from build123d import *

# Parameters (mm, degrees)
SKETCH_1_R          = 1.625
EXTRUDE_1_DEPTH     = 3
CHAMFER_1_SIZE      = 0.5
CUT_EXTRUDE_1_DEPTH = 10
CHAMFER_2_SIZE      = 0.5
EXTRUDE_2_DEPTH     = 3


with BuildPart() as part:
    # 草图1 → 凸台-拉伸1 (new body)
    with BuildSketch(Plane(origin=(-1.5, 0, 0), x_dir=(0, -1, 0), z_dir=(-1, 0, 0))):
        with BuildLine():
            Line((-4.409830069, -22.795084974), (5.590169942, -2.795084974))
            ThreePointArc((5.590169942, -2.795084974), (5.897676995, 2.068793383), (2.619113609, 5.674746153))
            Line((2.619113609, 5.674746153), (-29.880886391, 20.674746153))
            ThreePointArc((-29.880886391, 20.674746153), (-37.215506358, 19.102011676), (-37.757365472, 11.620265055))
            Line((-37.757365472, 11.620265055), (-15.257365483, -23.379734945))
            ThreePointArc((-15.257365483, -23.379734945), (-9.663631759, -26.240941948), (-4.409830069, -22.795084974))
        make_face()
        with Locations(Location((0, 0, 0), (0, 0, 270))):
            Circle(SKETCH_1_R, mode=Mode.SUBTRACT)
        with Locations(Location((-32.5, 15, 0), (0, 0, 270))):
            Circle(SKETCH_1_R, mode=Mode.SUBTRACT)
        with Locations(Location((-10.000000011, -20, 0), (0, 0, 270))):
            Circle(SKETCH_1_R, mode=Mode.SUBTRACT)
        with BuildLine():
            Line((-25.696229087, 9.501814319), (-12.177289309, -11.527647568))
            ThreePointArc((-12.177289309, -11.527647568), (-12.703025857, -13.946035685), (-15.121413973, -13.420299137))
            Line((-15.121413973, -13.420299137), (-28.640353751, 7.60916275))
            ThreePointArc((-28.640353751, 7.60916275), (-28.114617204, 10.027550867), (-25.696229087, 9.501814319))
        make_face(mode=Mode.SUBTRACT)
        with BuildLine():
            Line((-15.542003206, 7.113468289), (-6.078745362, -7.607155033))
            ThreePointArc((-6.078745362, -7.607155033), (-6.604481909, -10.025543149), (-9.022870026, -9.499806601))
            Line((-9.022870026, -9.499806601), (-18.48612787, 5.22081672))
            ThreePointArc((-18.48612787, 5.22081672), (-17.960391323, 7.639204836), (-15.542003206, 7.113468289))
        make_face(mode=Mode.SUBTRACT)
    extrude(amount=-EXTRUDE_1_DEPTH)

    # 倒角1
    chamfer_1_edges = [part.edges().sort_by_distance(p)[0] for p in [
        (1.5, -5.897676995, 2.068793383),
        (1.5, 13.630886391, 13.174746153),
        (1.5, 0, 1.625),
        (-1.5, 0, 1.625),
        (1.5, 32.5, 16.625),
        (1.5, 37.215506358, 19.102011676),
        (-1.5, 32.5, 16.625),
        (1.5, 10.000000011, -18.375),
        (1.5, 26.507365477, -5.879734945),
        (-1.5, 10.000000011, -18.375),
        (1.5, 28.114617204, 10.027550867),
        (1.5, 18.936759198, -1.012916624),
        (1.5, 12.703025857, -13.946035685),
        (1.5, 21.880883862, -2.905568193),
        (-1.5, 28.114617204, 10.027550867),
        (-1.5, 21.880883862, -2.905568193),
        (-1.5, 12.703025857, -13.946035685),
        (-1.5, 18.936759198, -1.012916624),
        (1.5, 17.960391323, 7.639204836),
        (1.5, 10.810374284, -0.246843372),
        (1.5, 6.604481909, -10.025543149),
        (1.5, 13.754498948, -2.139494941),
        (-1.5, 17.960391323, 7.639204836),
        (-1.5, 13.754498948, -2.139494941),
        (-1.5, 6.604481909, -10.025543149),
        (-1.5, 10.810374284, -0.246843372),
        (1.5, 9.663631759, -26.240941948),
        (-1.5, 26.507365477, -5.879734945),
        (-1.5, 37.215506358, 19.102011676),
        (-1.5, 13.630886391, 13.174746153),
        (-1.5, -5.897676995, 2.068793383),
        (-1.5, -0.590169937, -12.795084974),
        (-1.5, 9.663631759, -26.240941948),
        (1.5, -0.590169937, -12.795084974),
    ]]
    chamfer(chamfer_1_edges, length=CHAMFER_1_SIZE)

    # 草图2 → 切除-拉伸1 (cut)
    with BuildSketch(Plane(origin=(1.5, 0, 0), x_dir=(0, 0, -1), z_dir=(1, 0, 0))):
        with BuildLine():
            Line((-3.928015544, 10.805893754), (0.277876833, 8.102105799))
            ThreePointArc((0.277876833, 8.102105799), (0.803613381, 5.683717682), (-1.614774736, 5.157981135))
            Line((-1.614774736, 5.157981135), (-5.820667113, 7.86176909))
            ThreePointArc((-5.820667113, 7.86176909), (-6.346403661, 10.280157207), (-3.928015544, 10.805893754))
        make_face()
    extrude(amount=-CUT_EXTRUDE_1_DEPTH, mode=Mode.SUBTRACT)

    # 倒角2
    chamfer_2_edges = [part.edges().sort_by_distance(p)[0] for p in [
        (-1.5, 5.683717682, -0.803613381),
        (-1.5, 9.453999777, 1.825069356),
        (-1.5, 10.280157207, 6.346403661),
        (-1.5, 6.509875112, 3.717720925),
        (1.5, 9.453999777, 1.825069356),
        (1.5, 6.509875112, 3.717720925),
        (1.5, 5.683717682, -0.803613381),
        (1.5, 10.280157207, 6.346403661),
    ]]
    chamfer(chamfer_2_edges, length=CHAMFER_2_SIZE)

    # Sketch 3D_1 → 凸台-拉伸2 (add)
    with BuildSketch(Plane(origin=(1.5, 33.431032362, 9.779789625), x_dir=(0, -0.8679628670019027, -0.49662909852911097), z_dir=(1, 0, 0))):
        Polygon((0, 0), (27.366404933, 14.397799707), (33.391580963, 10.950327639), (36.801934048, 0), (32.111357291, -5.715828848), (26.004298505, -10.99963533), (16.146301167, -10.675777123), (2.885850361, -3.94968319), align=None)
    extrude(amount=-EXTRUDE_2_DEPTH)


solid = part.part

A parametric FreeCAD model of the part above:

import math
import FreeCAD as App
import Part
import Sketcher

V = App.Vector
Q = App.Units.Quantity


def edges_at(feature, points):
    """Names of the edges that pass closest to the given points."""
    edges = feature.Shape.Edges
    near = lambda p: min(range(len(edges)), key=lambda i: edges[i].distToShape(Part.Vertex(*p))[0])
    return sorted({f"Edge{near(p) + 1}" for p in points})

doc = App.newDocument("Part")
params = doc.addObject("Spreadsheet::Sheet", "Params")
for row, (alias, value) in enumerate([
    ("sketch1_diameter", "3.25 mm"),
    ("sketch1_radius", "6.25 mm"),
    ("sketch1_radius2", "1.75 mm"),
    ("sketch1_length", "25 mm"),
    ("sketch1_length2", "17.5 mm"),
    ("pad1_length", "3 mm"),
    ("chamfer_size", "0.5 mm"),
    ("sketch2_radius", "1.75 mm"),
    ("sketch2_length", "5 mm"),
    ("pocket1_length", "10 mm"),
    ("chamfer2_size", "0.5 mm"),
    ("pad2_length", "3 mm"),
], start=1):
    params.set(f"A{row}", alias)
    params.set(f"B{row}", "=" + value)
    params.setAlias(f"B{row}", alias)

body = doc.addObject("PartDesign::Body", "Body")

sketch1 = body.newObject("Sketcher::SketchObject", "Sketch")
sketch1.AttachmentSupport = (doc.getObject("YZ_Plane"), [""])
sketch1.MapMode = "FlatFace"
sketch1.AttachmentOffset = App.Placement(V(0, 0, -1.5), App.Rotation())
sketch1.addGeometry([
    Part.LineSegment(V(4.4, -22.8, 0), V(-5.6, -2.8, 0)),
    Part.ArcOfCircle(Part.Circle(V(0, 0, 0), V(0, 0, 1), 6.2), math.radians(115), math.radians(207)),
    Part.LineSegment(V(-2.6, 5.7, 0), V(29.9, 20.7, 0)),
    Part.ArcOfCircle(Part.Circle(V(32.5, 15, 0), V(0, 0, 1), 6.2), math.radians(-33), math.radians(115)),
    Part.LineSegment(V(37.8, 11.6, 0), V(15.3, -23.4, 0)),
    Part.ArcOfCircle(Part.Circle(V(10, -20, 0), V(0, 0, 1), 6.2), math.radians(-153), math.radians(-33)),
    Part.Circle(V(10, -20, 0), V(0, 0, 1), 1.6),
    Part.ArcOfCircle(Part.Circle(V(27.2, 8.6, 0), V(0, 0, 1), 1.8), math.radians(-33), math.radians(147)),
    Part.LineSegment(V(25.7, 9.5, 0), V(12.2, -11.5, 0)),
    Part.ArcOfCircle(Part.Circle(V(13.6, -12.5, 0), V(0, 0, 1), 1.8), math.radians(147), math.radians(327)),
    Part.LineSegment(V(15.1, -13.4, 0), V(28.6, 7.6, 0)),
    Part.Circle(V(32.5, 15, 0), V(0, 0, 1), 1.6),
    Part.ArcOfCircle(Part.Circle(V(17, 6.2, 0), V(0, 0, 1), 1.8), math.radians(-33), math.radians(147)),
    Part.LineSegment(V(15.5, 7.1, 0), V(6.1, -7.6, 0)),
    Part.ArcOfCircle(Part.Circle(V(7.6, -8.6, 0), V(0, 0, 1), 1.8), math.radians(147), math.radians(327)),
    Part.LineSegment(V(9, -9.5, 0), V(18.5, 5.2, 0)),
    Part.Circle(V(0, 0, 0), V(0, 0, 1), 1.6),
], False)
sketch1.addConstraint([
    Sketcher.Constraint("Tangent", 0, 2, 1, 2),
    Sketcher.Constraint("Tangent", 1, 1, 2, 1),
    Sketcher.Constraint("Tangent", 2, 2, 3, 2),
    Sketcher.Constraint("Tangent", 3, 1, 4, 1),
    Sketcher.Constraint("Tangent", 4, 2, 5, 2),
    Sketcher.Constraint("Tangent", 5, 1, 0, 1),
    Sketcher.Constraint("Tangent", 7, 2, 8, 1),
    Sketcher.Constraint("Tangent", 8, 2, 9, 1),
    Sketcher.Constraint("Tangent", 9, 2, 10, 1),
    Sketcher.Constraint("Tangent", 10, 2, 7, 1),
    Sketcher.Constraint("Tangent", 12, 2, 13, 1),
    Sketcher.Constraint("Tangent", 13, 2, 14, 1),
    Sketcher.Constraint("Tangent", 14, 2, 15, 1),
    Sketcher.Constraint("Tangent", 15, 2, 12, 1),
    Sketcher.Constraint("Coincident", 1, 3, -1, 1),
    Sketcher.Constraint("Coincident", 16, 3, -1, 1),
    Sketcher.Constraint("Coincident", 6, 3, 5, 3),
    Sketcher.Constraint("Coincident", 11, 3, 3, 3),
    Sketcher.Constraint("Equal", 1, 3),
    Sketcher.Constraint("Equal", 3, 5),
    Sketcher.Constraint("Equal", 7, 9),
    Sketcher.Constraint("Equal", 6, 11),
    Sketcher.Constraint("Equal", 9, 12),
    Sketcher.Constraint("Equal", 12, 14),
    Sketcher.Constraint("Equal", 11, 16),
    Sketcher.Constraint("Parallel", 4, 8),
    Sketcher.Constraint("Parallel", 10, 13),
    Sketcher.Constraint("Diameter", 6, Q("3.25 mm")),
    Sketcher.Constraint("Radius", 1, Q("6.25 mm")),
    Sketcher.Constraint("Radius", 7, Q("1.75 mm")),
    Sketcher.Constraint("Distance", 8, Q("25 mm")),
    Sketcher.Constraint("DistanceY", -1, 1, 3, 3, Q("15 mm")),
    Sketcher.Constraint("DistanceX", -1, 1, 5, 3, Q("10 mm")),
    Sketcher.Constraint("DistanceY", 5, 3, -1, 1, Q("20 mm")),
    Sketcher.Constraint("Distance", 13, Q("17.5 mm")),
    Sketcher.Constraint("DistanceX", -1, 1, 3, 3, Q("32.5 mm")),
    Sketcher.Constraint("DistanceY", 9, 2, -1, 1, Q("13.420299 mm")),
    Sketcher.Constraint("DistanceX", 12, 3, 3, 1, Q("20.7433 mm")),
    Sketcher.Constraint("DistanceX", 15, 2, 7, 2, Q("7.210101 mm")),
    Sketcher.Constraint("DistanceY", 14, 3, -1, 1, Q("8.553481 mm")),
])
sketch1.setExpression("Constraints[27]", "Params.sketch1_diameter")
sketch1.setExpression("Constraints[28]", "Params.sketch1_radius")
sketch1.setExpression("Constraints[29]", "Params.sketch1_radius2")
sketch1.setExpression("Constraints[30]", "Params.sketch1_length")
sketch1.setExpression("Constraints[34]", "Params.sketch1_length2")
pad1 = body.newObject("PartDesign::Pad", "Pad")
pad1.Profile = sketch1
pad1.setExpression("Length", "Params.pad1_length")
doc.recompute()

chamfer = body.newObject("PartDesign::Chamfer", "Chamfer")
chamfer.Base = (pad1, edges_at(pad1, [
    (1.5, -5.898, 2.069),
    (1.5, 13.631, 13.175),
    (1.5, 0, 1.625),
    (-1.5, 0, 1.625),
    (1.5, 32.5, 16.625),
    (1.5, 37.216, 19.102),
    (-1.5, 32.5, 16.625),
    (1.5, 10, -18.375),
    (1.5, 26.507, -5.88),
    (-1.5, 10, -18.375),
    (1.5, 28.115, 10.028),
    (1.5, 18.937, -1.013),
    (1.5, 12.703, -13.946),
    (1.5, 21.881, -2.906),
    (-1.5, 28.115, 10.028),
    (-1.5, 21.881, -2.906),
    (-1.5, 12.703, -13.946),
    (-1.5, 18.937, -1.013),
    (1.5, 17.96, 7.639),
    (1.5, 10.81, -0.247),
    (1.5, 6.604, -10.026),
    (1.5, 13.754, -2.139),
    (-1.5, 17.96, 7.639),
    (-1.5, 13.754, -2.139),
    (-1.5, 6.604, -10.026),
    (-1.5, 10.81, -0.247),
    (1.5, 9.664, -26.241),
    (-1.5, 26.507, -5.88),
    (-1.5, 37.216, 19.102),
    (-1.5, 13.631, 13.175),
    (-1.5, -5.898, 2.069),
    (-1.5, -0.59, -12.795),
    (-1.5, 9.664, -26.241),
    (1.5, -0.59, -12.795),
]))
chamfer.setExpression("Size", "Params.chamfer_size")

sketch2 = body.newObject("Sketcher::SketchObject", "Sketch001")
sketch2.AttachmentSupport = (doc.getObject("YZ_Plane"), [""])
sketch2.MapMode = "FlatFace"
sketch2.AttachmentOffset = App.Placement(V(0, 0, 1.5), App.Rotation())
sketch2.addGeometry([
    Part.LineSegment(V(8.1, -0.3, 0), V(10.8, 3.9, 0)),
    Part.ArcOfCircle(Part.Circle(V(9.3, 4.9, 0), V(0, 0, 1), 1.8), math.radians(-33), math.radians(147)),
    Part.LineSegment(V(7.9, 5.8, 0), V(5.2, 1.6, 0)),
    Part.ArcOfCircle(Part.Circle(V(6.6, 0.7, 0), V(0, 0, 1), 1.8), math.radians(147), math.radians(327)),
], False)
sketch2.addConstraint([
    Sketcher.Constraint("Tangent", 0, 2, 1, 1),
    Sketcher.Constraint("Tangent", 1, 2, 2, 1),
    Sketcher.Constraint("Tangent", 2, 2, 3, 1),
    Sketcher.Constraint("Tangent", 3, 2, 0, 1),
    Sketcher.Constraint("Equal", 1, 3),
    Sketcher.Constraint("Radius", 1, Q("1.75 mm")),
    Sketcher.Constraint("Distance", 0, Q("5 mm")),
    Sketcher.Constraint("DistanceX", -1, 1, 1, 3, Q("9.333831 mm")),
    Sketcher.Constraint("DistanceY", -1, 1, 1, 3, Q("4.874341 mm")),
    Sketcher.Constraint("DistanceY", -1, 1, 3, 3, Q("0.668449 mm")),
])
sketch2.setExpression("Constraints[5]", "Params.sketch2_radius")
sketch2.setExpression("Constraints[6]", "Params.sketch2_length")
pocket1 = body.newObject("PartDesign::Pocket", "Pocket")
pocket1.Profile = sketch2
pocket1.setExpression("Length", "Params.pocket1_length")
doc.recompute()

chamfer2 = body.newObject("PartDesign::Chamfer", "Chamfer001")
chamfer2.Base = (pocket1, edges_at(pocket1, [
    (-1.5, 5.684, -0.804),
    (-1.5, 9.454, 1.825),
    (-1.5, 10.28, 6.346),
    (-1.5, 6.51, 3.718),
    (1.5, 9.454, 1.825),
    (1.5, 6.51, 3.718),
    (1.5, 5.684, -0.804),
    (1.5, 10.28, 6.346),
]))
chamfer2.setExpression("Size", "Params.chamfer2_size")

sketch3 = body.newObject("Sketcher::SketchObject", "Sketch002")
sketch3.AttachmentSupport = (doc.getObject("YZ_Plane"), [""])
sketch3.MapMode = "FlatFace"
sketch3.AttachmentOffset = App.Placement(V(0, 0, 1.5), App.Rotation())
sketch3.addGeometry([
    Part.LineSegment(V(16.8, -16.3, 0), V(33.4, 9.8, 0)),
    Part.LineSegment(V(33.4, 9.8, 0), V(29, 11.8, 0)),
    Part.LineSegment(V(29, 11.8, 0), V(14.1, 11, 0)),
    Part.LineSegment(V(14.1, 11, 0), V(5.4, 6.4, 0)),
    Part.LineSegment(V(5.4, 6.4, 0), V(2.7, -1.2, 0)),
    Part.LineSegment(V(2.7, -1.2, 0), V(1.5, -8.5, 0)),
    Part.LineSegment(V(1.5, -8.5, 0), V(9.9, -16.3, 0)),
    Part.LineSegment(V(9.9, -16.3, 0), V(16.8, -16.3, 0)),
], False)
sketch3.addConstraint([
    Sketcher.Constraint("Coincident", 0, 2, 1, 1),
    Sketcher.Constraint("Coincident", 1, 2, 2, 1),
    Sketcher.Constraint("Coincident", 2, 2, 3, 1),
    Sketcher.Constraint("Coincident", 3, 2, 4, 1),
    Sketcher.Constraint("Coincident", 4, 2, 5, 1),
    Sketcher.Constraint("Coincident", 5, 2, 6, 1),
    Sketcher.Constraint("Coincident", 6, 2, 7, 1),
    Sketcher.Constraint("Coincident", 7, 2, 0, 1),
    Sketcher.Constraint("Horizontal", 7),
    Sketcher.Constraint("DistanceX", 5, 2, 4, 2, Q("1.2326 mm")),
    Sketcher.Constraint("DistanceY", 6, 2, 4, 2, Q("15.101401 mm")),
    Sketcher.Constraint("Distance", 1, Q("4.891639 mm")),
    Sketcher.Constraint("DistanceX", 7, 1, 7, 2, Q("6.941744 mm")),
    Sketcher.Constraint("DistanceY", -1, 1, 0, 2, Q("9.77979 mm")),
    Sketcher.Constraint("DistanceY", -1, 1, 1, 2, Q("11.774771 mm")),
    Sketcher.Constraint("DistanceX", -1, 1, 2, 2, Q("14.114741 mm")),
    Sketcher.Constraint("DistanceX", -1, 1, 4, 2, Q("2.72092 mm")),
    Sketcher.Constraint("DistanceY", 5, 2, -1, 1, Q("8.497122 mm")),
    Sketcher.Constraint("DistanceX", -1, 1, 6, 2, Q("9.886631 mm")),
    Sketcher.Constraint("DistanceY", 6, 2, -1, 1, Q("16.307919 mm")),
    Sketcher.Constraint("DistanceX", 2, 2, 0, 2, Q("19.316291 mm")),
    Sketcher.Constraint("DistanceY", 3, 2, 2, 2, Q("4.614671 mm")),
    Sketcher.Constraint("DistanceX", 4, 2, 3, 2, Q("2.676608 mm")),
    Sketcher.Constraint("DistanceY", 4, 2, 3, 2, Q("7.619091 mm")),
])
pad2 = body.newObject("PartDesign::Pad", "Pad001")
pad2.Profile = sketch3
pad2.setExpression("Length", "Params.pad2_length")
pad2.Reversed = True

doc.recompute()
